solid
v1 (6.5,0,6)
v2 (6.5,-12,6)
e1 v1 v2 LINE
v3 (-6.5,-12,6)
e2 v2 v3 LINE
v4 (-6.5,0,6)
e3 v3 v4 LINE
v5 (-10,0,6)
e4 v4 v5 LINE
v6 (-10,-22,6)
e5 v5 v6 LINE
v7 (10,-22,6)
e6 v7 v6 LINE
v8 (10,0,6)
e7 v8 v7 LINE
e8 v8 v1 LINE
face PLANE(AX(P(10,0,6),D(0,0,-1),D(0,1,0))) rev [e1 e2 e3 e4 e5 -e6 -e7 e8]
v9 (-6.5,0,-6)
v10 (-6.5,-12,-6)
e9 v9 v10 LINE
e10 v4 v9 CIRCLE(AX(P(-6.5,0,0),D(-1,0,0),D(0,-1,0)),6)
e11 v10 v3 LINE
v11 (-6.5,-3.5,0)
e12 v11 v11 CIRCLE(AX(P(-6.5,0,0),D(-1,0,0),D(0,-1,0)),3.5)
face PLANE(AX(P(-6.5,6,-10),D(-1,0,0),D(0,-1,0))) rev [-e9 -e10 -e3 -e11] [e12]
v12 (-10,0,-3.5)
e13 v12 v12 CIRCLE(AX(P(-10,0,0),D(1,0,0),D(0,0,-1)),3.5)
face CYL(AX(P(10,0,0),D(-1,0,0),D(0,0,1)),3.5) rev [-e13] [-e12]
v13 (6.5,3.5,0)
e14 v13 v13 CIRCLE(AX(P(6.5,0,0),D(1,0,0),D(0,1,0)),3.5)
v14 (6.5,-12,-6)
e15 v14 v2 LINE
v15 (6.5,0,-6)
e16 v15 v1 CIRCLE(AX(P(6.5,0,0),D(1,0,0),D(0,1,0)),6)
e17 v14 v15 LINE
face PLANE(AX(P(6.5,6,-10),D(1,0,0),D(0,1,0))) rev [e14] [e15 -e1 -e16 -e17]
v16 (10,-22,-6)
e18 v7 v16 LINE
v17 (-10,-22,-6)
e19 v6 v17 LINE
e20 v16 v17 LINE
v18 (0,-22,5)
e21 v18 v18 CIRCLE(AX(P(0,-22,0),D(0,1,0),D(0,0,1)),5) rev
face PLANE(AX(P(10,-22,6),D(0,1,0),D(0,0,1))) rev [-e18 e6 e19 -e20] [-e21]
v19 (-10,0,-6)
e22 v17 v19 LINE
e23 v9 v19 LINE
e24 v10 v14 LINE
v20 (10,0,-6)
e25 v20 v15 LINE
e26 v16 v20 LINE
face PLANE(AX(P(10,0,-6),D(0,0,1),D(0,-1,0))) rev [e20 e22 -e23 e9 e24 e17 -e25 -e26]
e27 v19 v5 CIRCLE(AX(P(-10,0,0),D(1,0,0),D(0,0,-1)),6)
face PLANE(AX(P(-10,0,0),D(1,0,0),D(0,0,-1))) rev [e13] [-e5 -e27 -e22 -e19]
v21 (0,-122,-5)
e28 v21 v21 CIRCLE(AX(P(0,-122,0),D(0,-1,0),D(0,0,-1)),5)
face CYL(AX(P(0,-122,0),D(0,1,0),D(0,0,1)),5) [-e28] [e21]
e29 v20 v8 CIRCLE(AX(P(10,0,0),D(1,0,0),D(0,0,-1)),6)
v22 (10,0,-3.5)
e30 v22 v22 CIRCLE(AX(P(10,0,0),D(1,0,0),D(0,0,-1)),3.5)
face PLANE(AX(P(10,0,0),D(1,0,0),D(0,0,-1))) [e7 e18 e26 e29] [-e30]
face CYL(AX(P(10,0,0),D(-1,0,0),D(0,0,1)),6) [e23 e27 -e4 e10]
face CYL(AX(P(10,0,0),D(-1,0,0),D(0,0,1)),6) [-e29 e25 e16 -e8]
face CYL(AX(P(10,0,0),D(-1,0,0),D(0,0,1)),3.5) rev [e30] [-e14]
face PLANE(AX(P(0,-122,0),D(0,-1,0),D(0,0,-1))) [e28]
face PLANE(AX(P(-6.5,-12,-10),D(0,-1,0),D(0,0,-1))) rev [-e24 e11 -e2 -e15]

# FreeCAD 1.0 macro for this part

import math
import FreeCAD as App
import Part
import Sketcher

V = App.Vector


def add_polygon(sketch, points):
    """Adds a closed chain of lines whose ends are joined by coincident constraints."""
    first, n = sketch.GeometryCount, len(points)
    for a, b in zip(points, points[1:] + points[:1]):
        sketch.addGeometry(Part.LineSegment(App.Vector(*a, 0), App.Vector(*b, 0)), False)
    for i in range(n):
        sketch.addConstraint(Sketcher.Constraint("Coincident", first + i, 2, first + (i + 1) % n, 1))

doc = App.newDocument("Part")
body = doc.addObject("PartDesign::Body", "Body")

sketch1 = doc.addObject("Sketcher::SketchObject", "Sketch")
body.addObject(sketch1)
sketch1.AttachmentSupport = (doc.YZ_Plane, [""])
sketch1.MapMode = "FlatFace"
sketch1.addGeometry(Part.LineSegment(V(0, 6, 0), V(-22, 6, 0)), False)
sketch1.addGeometry(Part.LineSegment(V(-22, 6, 0), V(-22, -6, 0)), False)
sketch1.addGeometry(Part.LineSegment(V(-22, -6, 0), V(0, -6, 0)), False)
sketch1.addGeometry(Part.ArcOfCircle(Part.Circle(V(0, 0, 0), V(0, 0, 1), 6), math.radians(-90), math.radians(90)), False)
sketch1.addGeometry(Part.Circle(V(0, 0, 0), V(0, 0, 1), 3.5), False)
sketch1.addConstraint(Sketcher.Constraint("Coincident", 0, 2, 1, 1))
sketch1.addConstraint(Sketcher.Constraint("Coincident", 1, 2, 2, 1))
sketch1.addConstraint(Sketcher.Constraint("Tangent", 2, 2, 3, 1))
sketch1.addConstraint(Sketcher.Constraint("Tangent", 3, 2, 0, 1))
sketch1.addConstraint(Sketcher.Constraint("Horizontal", 0))
sketch1.addConstraint(Sketcher.Constraint("Vertical", 1))
sketch1.addConstraint(Sketcher.Constraint("Horizontal", 2))
sketch1.addConstraint(Sketcher.Constraint("Coincident", 3, 3, -1, 1))
sketch1.addConstraint(Sketcher.Constraint("Coincident", 4, 3, -1, 1))
sketch1.addConstraint(Sketcher.Constraint("Diameter", 4, 7.0))
sketch1.addConstraint(Sketcher.Constraint("Radius", 3, 6.0))
sketch1.addConstraint(Sketcher.Constraint("DistanceX", 0, 2, 0, 1, 22.0))
pad1 = doc.addObject("PartDesign::Pad", "Pad")
body.addObject(pad1)
pad1.Profile = sketch1
pad1.Length = 20
pad1.Midplane = True

sketch2 = doc.addObject("Sketcher::SketchObject", "Sketch001")
body.addObject(sketch2)
sketch2.AttachmentSupport = (doc.XY_Plane, [""])
sketch2.MapMode = "FlatFace"
add_polygon(sketch2, [(-6, 6), (-6, -12), (6, -12), (6, 6)])
sketch2.addConstraint(Sketcher.Constraint("Vertical", 0))
sketch2.addConstraint(Sketcher.Constraint("Horizontal", 1))
sketch2.addConstraint(Sketcher.Constraint("Vertical", 2))
sketch2.addConstraint(Sketcher.Constraint("Horizontal", 3))
sketch2.addConstraint(Sketcher.Constraint("DistanceX", 1, 1, 1, 2, 13.0))
sketch2.addConstraint(Sketcher.Constraint("DistanceY", 0, 2, 0, 1, 18.0))
sketch2.addConstraint(Sketcher.Constraint("DistanceY", 0, 2, -1, 1, 12.0))
sketch2.addConstraint(Sketcher.Constraint("DistanceX", 0, 2, -1, 1, 6.5))
pocket1 = doc.addObject("PartDesign::Pocket", "Pocket")
body.addObject(pocket1)
pocket1.Profile = sketch2
pocket1.Length = 20
pocket1.Midplane = True

sketch3 = doc.addObject("Sketcher::SketchObject", "Sketch002")
body.addObject(sketch3)
sketch3.AttachmentSupport = (doc.XZ_Plane, [""])
sketch3.MapMode = "FlatFace"
sketch3.AttachmentOffset = App.Placement(V(0, 0, 22), App.Rotation())
sketch3.addGeometry(Part.Circle(V(0, 0, 0), V(0, 0, 1), 5), False)
sketch3.addConstraint(Sketcher.Constraint("Coincident", 0, 3, -1, 1))
sketch3.addConstraint(Sketcher.Constraint("Diameter", 0, 10.0))
pad2 = doc.addObject("PartDesign::Pad", "Pad001")
body.addObject(pad2)
pad2.Profile = sketch3
pad2.Length = 100

doc.recompute()
